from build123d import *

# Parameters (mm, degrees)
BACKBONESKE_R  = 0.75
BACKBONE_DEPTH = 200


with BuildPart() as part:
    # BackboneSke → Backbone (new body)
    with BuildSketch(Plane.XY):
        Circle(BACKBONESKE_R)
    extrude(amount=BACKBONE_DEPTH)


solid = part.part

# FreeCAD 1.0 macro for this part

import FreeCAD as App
import Part
import Sketcher
from FreeCAD import Vector

doc = App.newDocument("Part")
params = doc.addObject("Spreadsheet::Sheet", "Params")
for row, (alias, value) in enumerate([
    ("sketch1_diameter", "1.5 mm"),
    ("pad1_length", "200 mm"),
], start=1):
    params.set(f"A{row}", alias)
    params.set(f"B{row}", "=" + value)
    params.setAlias(f"B{row}", alias)

body = doc.addObject("PartDesign::Body", "Body")

sketch1 = body.newObject("Sketcher::SketchObject", "Sketch")
sketch1.AttachmentSupport = (doc.getObject("XY_Plane"), [""])
sketch1.MapMode = "FlatFace"
sketch1.addGeometry(Part.Circle(Vector(0, 0, 0), Vector(0, 0, 1), 0.8), False)
sketch1.addConstraint([
    Sketcher.Constraint("Coincident", 0, 3, -1, 1),
    Sketcher.Constraint("Diameter", 0, 1.5),
])
sketch1.setExpression("Constraints[1]", "Params.sketch1_diameter")
pad1 = body.newObject("PartDesign::Pad", "Pad")
pad1.Profile = sketch1
pad1.setExpression("Length", "Params.pad1_length")

doc.recompute()
